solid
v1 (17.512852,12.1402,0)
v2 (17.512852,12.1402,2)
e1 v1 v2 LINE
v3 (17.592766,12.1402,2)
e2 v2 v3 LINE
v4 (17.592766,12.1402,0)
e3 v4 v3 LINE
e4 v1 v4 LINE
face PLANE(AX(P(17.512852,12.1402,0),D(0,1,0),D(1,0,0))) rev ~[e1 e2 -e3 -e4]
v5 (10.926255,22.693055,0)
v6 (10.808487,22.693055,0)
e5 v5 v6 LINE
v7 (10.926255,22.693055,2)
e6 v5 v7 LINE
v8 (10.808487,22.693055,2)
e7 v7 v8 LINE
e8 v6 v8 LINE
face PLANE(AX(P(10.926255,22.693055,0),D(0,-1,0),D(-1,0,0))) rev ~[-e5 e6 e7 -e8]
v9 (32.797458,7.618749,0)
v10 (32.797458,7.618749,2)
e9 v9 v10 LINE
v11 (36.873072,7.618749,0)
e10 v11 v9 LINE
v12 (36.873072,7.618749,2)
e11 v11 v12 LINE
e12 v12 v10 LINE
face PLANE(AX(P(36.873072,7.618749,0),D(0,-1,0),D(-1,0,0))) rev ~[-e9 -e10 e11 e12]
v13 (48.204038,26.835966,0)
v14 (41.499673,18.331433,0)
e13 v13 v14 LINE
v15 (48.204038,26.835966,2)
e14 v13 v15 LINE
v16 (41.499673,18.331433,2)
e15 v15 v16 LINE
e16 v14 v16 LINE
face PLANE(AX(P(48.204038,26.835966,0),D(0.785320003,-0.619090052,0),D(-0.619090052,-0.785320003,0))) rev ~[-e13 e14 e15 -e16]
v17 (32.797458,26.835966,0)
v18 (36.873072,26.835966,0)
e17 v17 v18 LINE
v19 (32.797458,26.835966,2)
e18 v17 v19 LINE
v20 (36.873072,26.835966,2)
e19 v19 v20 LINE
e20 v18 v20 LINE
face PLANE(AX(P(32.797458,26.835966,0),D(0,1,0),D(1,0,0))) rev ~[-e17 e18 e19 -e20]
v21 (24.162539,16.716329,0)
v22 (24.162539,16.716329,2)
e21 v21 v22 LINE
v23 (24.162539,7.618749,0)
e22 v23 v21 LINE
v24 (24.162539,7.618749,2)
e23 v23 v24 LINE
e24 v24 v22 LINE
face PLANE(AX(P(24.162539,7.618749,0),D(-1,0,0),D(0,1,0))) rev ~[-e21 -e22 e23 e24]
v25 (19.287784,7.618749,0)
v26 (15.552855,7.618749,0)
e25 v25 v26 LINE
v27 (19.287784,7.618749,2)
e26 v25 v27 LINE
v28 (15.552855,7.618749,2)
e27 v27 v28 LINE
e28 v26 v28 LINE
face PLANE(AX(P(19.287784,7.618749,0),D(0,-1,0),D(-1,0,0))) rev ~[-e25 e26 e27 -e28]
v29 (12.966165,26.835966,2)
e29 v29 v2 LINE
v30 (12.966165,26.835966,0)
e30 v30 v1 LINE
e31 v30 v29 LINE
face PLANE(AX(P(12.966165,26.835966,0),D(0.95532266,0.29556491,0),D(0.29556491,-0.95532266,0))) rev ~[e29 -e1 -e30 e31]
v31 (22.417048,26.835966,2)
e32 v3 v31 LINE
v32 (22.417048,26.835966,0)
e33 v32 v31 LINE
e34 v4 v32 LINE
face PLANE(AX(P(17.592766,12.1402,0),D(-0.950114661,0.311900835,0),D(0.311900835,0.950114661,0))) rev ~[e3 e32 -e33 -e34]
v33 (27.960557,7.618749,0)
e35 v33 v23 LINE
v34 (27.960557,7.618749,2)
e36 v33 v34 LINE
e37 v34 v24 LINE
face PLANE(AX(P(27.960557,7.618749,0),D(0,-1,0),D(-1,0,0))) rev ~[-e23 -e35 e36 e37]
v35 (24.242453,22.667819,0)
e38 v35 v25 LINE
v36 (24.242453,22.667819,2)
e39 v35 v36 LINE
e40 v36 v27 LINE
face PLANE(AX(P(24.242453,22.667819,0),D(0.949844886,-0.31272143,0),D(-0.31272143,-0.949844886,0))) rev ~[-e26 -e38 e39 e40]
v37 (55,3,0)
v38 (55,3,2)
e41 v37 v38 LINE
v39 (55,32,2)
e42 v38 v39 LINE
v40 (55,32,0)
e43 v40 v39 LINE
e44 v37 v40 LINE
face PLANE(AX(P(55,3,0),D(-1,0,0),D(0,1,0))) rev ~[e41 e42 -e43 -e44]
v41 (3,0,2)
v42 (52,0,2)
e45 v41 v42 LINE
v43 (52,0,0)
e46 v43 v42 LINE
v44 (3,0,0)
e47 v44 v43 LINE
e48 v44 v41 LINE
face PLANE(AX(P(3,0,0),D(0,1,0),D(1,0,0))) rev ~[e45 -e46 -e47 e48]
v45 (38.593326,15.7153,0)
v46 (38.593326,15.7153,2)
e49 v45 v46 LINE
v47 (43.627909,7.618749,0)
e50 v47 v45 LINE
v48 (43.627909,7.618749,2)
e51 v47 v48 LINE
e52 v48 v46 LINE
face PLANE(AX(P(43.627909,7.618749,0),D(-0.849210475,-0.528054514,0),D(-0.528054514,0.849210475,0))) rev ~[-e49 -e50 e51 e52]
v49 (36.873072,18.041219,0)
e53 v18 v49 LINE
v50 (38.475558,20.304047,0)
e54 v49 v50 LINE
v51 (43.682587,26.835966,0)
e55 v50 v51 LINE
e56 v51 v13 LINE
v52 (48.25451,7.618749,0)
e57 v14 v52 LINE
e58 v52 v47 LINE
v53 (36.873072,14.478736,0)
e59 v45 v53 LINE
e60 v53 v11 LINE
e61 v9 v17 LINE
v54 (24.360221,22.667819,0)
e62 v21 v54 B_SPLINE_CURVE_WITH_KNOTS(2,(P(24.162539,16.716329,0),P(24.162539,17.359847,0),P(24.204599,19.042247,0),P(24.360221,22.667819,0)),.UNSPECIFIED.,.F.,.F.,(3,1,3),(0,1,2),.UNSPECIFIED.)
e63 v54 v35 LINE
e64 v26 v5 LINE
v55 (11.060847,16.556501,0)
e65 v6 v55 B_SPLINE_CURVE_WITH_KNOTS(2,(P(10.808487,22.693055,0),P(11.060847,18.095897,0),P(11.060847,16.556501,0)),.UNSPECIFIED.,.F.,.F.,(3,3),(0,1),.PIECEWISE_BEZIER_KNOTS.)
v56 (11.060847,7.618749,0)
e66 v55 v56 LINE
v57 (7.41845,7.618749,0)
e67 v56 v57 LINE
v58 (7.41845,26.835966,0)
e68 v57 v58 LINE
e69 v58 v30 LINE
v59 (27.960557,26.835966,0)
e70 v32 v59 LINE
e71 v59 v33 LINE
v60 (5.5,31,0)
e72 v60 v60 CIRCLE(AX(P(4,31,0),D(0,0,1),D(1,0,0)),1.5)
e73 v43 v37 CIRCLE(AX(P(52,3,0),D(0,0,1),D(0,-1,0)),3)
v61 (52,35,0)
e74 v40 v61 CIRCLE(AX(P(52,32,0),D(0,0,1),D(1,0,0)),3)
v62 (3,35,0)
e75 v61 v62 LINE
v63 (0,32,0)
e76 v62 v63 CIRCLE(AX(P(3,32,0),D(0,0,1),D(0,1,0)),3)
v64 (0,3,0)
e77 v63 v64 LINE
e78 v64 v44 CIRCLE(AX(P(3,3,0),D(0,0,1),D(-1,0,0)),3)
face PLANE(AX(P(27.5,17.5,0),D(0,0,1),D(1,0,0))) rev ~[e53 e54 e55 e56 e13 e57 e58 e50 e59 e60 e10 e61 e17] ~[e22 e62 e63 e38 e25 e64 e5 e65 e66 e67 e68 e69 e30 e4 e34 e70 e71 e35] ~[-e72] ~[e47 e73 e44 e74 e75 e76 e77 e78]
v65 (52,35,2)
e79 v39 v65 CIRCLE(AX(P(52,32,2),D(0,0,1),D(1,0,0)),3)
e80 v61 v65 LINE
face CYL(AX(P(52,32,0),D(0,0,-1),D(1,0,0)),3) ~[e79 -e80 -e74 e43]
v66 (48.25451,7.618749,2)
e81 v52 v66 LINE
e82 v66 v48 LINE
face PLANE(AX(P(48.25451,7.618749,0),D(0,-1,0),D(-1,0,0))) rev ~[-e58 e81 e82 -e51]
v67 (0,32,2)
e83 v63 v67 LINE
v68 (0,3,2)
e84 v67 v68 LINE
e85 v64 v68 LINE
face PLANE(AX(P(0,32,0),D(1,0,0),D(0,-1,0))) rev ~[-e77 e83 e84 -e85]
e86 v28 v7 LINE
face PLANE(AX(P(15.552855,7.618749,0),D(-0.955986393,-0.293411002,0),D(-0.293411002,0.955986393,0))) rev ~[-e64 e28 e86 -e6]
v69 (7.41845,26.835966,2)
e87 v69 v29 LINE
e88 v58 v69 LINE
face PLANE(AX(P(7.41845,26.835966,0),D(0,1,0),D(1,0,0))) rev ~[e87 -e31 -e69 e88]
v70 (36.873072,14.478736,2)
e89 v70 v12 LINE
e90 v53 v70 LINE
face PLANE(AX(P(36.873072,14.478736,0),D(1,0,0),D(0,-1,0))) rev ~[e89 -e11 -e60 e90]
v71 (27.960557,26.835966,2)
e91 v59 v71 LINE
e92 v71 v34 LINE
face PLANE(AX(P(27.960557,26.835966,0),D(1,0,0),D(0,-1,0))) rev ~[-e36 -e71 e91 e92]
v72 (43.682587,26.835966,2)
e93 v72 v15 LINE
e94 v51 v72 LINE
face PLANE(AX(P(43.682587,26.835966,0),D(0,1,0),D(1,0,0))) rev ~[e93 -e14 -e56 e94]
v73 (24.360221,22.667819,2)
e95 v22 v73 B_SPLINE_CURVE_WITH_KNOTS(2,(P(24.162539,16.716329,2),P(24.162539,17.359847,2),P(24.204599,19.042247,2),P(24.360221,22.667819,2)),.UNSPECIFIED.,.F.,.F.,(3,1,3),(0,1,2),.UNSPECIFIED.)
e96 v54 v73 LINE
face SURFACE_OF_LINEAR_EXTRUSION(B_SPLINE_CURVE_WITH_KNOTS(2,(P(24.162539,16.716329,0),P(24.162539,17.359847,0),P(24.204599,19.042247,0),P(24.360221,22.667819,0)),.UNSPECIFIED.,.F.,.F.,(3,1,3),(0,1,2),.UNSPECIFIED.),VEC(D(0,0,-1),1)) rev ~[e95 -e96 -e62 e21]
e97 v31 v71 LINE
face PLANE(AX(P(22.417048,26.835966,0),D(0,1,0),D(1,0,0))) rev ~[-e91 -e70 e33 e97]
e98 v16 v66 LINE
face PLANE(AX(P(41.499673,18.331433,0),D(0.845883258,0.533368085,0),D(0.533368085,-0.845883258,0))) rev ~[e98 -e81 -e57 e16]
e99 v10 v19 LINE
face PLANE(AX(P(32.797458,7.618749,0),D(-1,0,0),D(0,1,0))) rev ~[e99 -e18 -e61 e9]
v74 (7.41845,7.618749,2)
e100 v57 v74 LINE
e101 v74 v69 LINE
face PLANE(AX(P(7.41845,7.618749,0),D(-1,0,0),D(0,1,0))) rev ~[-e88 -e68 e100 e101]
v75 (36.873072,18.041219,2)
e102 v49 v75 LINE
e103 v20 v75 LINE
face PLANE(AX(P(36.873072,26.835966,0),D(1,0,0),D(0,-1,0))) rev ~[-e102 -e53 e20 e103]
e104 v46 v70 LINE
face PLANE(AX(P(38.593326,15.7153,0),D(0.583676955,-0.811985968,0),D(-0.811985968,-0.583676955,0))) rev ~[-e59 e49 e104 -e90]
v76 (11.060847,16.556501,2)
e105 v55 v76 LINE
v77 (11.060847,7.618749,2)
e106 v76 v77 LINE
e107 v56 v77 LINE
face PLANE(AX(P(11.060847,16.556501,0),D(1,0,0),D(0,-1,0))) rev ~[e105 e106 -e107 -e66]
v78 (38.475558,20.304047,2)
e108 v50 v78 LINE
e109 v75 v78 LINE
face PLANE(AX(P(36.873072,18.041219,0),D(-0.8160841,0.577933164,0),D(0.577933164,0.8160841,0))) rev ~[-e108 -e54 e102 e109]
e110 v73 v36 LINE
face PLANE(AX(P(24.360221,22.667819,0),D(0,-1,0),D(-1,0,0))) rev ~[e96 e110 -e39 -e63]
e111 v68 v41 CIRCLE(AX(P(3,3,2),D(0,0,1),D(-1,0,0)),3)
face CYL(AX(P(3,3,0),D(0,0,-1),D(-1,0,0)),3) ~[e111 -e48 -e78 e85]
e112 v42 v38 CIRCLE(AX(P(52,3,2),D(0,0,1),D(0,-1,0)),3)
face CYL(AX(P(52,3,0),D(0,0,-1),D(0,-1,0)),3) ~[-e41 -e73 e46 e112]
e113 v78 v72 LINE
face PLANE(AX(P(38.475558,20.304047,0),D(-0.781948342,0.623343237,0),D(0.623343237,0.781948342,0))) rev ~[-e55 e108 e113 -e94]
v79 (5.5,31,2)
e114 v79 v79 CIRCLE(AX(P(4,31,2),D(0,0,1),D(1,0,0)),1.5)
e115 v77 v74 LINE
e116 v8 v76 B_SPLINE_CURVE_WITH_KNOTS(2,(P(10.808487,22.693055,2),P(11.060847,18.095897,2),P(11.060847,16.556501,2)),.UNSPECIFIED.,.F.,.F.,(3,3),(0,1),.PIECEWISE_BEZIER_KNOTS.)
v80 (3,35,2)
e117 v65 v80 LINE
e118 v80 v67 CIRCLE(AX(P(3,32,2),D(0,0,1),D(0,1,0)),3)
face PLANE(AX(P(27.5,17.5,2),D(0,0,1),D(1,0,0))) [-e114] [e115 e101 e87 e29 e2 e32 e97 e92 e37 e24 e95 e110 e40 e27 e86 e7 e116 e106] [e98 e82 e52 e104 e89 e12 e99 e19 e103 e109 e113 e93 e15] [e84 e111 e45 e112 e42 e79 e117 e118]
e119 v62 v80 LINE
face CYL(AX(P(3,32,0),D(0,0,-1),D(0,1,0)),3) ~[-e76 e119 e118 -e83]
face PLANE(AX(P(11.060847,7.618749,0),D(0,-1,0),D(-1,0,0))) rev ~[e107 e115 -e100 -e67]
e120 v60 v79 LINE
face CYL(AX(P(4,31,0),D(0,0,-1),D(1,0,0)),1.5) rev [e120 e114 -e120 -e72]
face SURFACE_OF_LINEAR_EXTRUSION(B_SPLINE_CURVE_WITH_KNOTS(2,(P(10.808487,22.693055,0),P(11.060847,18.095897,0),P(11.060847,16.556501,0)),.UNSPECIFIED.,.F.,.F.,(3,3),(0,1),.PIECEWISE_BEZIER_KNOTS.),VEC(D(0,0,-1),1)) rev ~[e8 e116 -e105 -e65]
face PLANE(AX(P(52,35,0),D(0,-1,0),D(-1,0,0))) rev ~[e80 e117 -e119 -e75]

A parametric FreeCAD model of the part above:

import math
import FreeCAD as App
import Part
import Sketcher
Q = App.Units.Quantity


def add_polygon(sketch, points):
    """Adds a closed chain of lines whose ends are joined by coincident constraints."""
    first, n = sketch.GeometryCount, len(points)
    for a, b in zip(points, points[1:] + points[:1]):
        sketch.addGeometry(Part.LineSegment(App.Vector(*a, 0), App.Vector(*b, 0)), False)
    for i in range(n):
        sketch.addConstraint(Sketcher.Constraint("Coincident", first + i, 2, first + (i + 1) % n, 1))

doc = App.newDocument("Part")
params = doc.addObject("Spreadsheet::Sheet", "Params")
for row, (alias, value) in enumerate([
    ("sketch1_diameter", "3 mm"),
    ("sketch1_radius", "3 mm"),
    ("sketch1_width", "49 mm"),
    ("sketch1_height", "29 mm"),
    ("pad1_length", "2 mm"),
], start=1):
    params.set(f"A{row}", alias)
    params.set(f"B{row}", "=" + value)
    params.setAlias(f"B{row}", alias)

body = doc.addObject("PartDesign::Body", "Body")

# Sketch on XY plane
sketch1 = doc.addObject("Sketcher::SketchObject", "Sketch")
body.addObject(sketch1)
sketch1.AttachmentSupport = (doc.XY_Plane, [""])
sketch1.MapMode = "FlatFace"
sketch1.addGeometry(Part.ArcOfCircle(Part.Circle(App.Vector(3, 3, 0), App.Vector(0, 0, 1), 3), math.radians(180), math.radians(270)), False)  # 0
sketch1.addGeometry(Part.LineSegment(App.Vector(3, 0, 0), App.Vector(52, 0, 0)), False)  # 1
sketch1.addGeometry(Part.ArcOfCircle(Part.Circle(App.Vector(52, 3, 0), App.Vector(0, 0, 1), 3), math.radians(-90), math.radians(0)), False)  # 2
sketch1.addGeometry(Part.LineSegment(App.Vector(55, 3, 0), App.Vector(55, 32, 0)), False)  # 3
sketch1.addGeometry(Part.ArcOfCircle(Part.Circle(App.Vector(52, 32, 0), App.Vector(0, 0, 1), 3), math.radians(0), math.radians(90)), False)  # 4
sketch1.addGeometry(Part.LineSegment(App.Vector(52, 35, 0), App.Vector(3, 35, 0)), False)  # 5
sketch1.addGeometry(Part.ArcOfCircle(Part.Circle(App.Vector(3, 32, 0), App.Vector(0, 0, 1), 3), math.radians(90), math.radians(180)), False)  # 6
sketch1.addGeometry(Part.LineSegment(App.Vector(0, 32, 0), App.Vector(0, 3, 0)), False)  # 7
sketch1.addGeometry(Part.LineSegment(App.Vector(24.242453, 22.667819, 0), App.Vector(19.287784, 7.618749, 0)), False)  # 8
sketch1.addGeometry(Part.LineSegment(App.Vector(19.287784, 7.618749, 0), App.Vector(15.552855, 7.618749, 0)), False)  # 9
sketch1.addGeometry(Part.LineSegment(App.Vector(15.552855, 7.618749, 0), App.Vector(10.926255, 22.693055, 0)), False)  # 10
sketch1.addGeometry(Part.LineSegment(App.Vector(10.926255, 22.693055, 0), App.Vector(10.808487, 22.693055, 0)), False)  # 11
sketch1.addGeometry(Part.BSplineCurve([App.Vector(10.808487, 22.693055, 0), App.Vector(11.060847, 18.095897, 0), App.Vector(11.060847, 16.556501, 0)], [3, 3], [0, 1], False, 2, [1, 1, 1], False), False)  # 12
sketch1.addGeometry(Part.LineSegment(App.Vector(11.060847, 16.556501, 0), App.Vector(11.060847, 7.618749, 0)), False)  # 13
sketch1.addGeometry(Part.LineSegment(App.Vector(11.060847, 7.618749, 0), App.Vector(7.41845, 7.618749, 0)), False)  # 14
sketch1.addGeometry(Part.LineSegment(App.Vector(7.41845, 7.618749, 0), App.Vector(7.41845, 26.835966, 0)), False)  # 15
sketch1.addGeometry(Part.LineSegment(App.Vector(7.41845, 26.835966, 0), App.Vector(12.966165, 26.835966, 0)), False)  # 16
sketch1.addGeometry(Part.LineSegment(App.Vector(12.966165, 26.835966, 0), App.Vector(17.512852, 12.1402, 0)), False)  # 17
sketch1.addGeometry(Part.LineSegment(App.Vector(17.512852, 12.1402, 0), App.Vector(17.592766, 12.1402, 0)), False)  # 18
sketch1.addGeometry(Part.LineSegment(App.Vector(17.592766, 12.1402, 0), App.Vector(22.417048, 26.835966, 0)), False)  # 19
sketch1.addGeometry(Part.LineSegment(App.Vector(22.417048, 26.835966, 0), App.Vector(27.960557, 26.835966, 0)), False)  # 20
sketch1.addGeometry(Part.LineSegment(App.Vector(27.960557, 26.835966, 0), App.Vector(27.960557, 7.618749, 0)), False)  # 21
sketch1.addGeometry(Part.LineSegment(App.Vector(27.960557, 7.618749, 0), App.Vector(24.162539, 7.618749, 0)), False)  # 22
sketch1.addGeometry(Part.LineSegment(App.Vector(24.162539, 7.618749, 0), App.Vector(24.162539, 16.716329, 0)), False)  # 23
sketch1.addGeometry(Part.BSplineCurve([App.Vector(24.162539, 16.716329, 0), App.Vector(24.162539, 17.359847, 0), App.Vector(24.204599, 19.042247, 0), App.Vector(24.360221, 22.667819, 0)], [3, 1, 3], [0, 1, 2], False, 2, [1, 1, 1, 1], False), False)  # 24
sketch1.addGeometry(Part.LineSegment(App.Vector(24.360221, 22.667819, 0), App.Vector(24.242453, 22.667819, 0)), False)  # 25
add_polygon(sketch1, [(48.204038, 26.835966), (41.499673, 18.331433), (48.25451, 7.618749), (43.627909, 7.618749), (38.593326, 15.7153), (36.873072, 14.478736), (36.873072, 7.618749), (32.797458, 7.618749), (32.797458, 26.835966), (36.873072, 26.835966), (36.873072, 18.041219), (38.475558, 20.304047), (43.682587, 26.835966)])  # lines 26-38
sketch1.addGeometry(Part.Circle(App.Vector(4, 31, 0), App.Vector(0, 0, 1), 1.5), False)  # 39
sketch1.addConstraint(Sketcher.Constraint("Block", 12))
sketch1.addConstraint(Sketcher.Constraint("Block", 24))
sketch1.addConstraint(Sketcher.Constraint("Tangent", 0, 2, 1, 1))
sketch1.addConstraint(Sketcher.Constraint("Tangent", 1, 2, 2, 1))
sketch1.addConstraint(Sketcher.Constraint("Tangent", 2, 2, 3, 1))
sketch1.addConstraint(Sketcher.Constraint("Tangent", 3, 2, 4, 1))
sketch1.addConstraint(Sketcher.Constraint("Tangent", 4, 2, 5, 1))
sketch1.addConstraint(Sketcher.Constraint("Tangent", 5, 2, 6, 1))
sketch1.addConstraint(Sketcher.Constraint("Tangent", 6, 2, 7, 1))
sketch1.addConstraint(Sketcher.Constraint("Tangent", 7, 2, 0, 1))
sketch1.addConstraint(Sketcher.Constraint("Coincident", 8, 2, 9, 1))
sketch1.addConstraint(Sketcher.Constraint("Coincident", 9, 2, 10, 1))
sketch1.addConstraint(Sketcher.Constraint("Coincident", 10, 2, 11, 1))
sketch1.addConstraint(Sketcher.Constraint("Coincident", 11, 2, 12, 1))
sketch1.addConstraint(Sketcher.Constraint("Coincident", 12, 2, 13, 1))
sketch1.addConstraint(Sketcher.Constraint("Coincident", 13, 2, 14, 1))
sketch1.addConstraint(Sketcher.Constraint("Coincident", 14, 2, 15, 1))
sketch1.addConstraint(Sketcher.Constraint("Coincident", 15, 2, 16, 1))
sketch1.addConstraint(Sketcher.Constraint("Coincident", 16, 2, 17, 1))
sketch1.addConstraint(Sketcher.Constraint("Coincident", 17, 2, 18, 1))
sketch1.addConstraint(Sketcher.Constraint("Coincident", 18, 2, 19, 1))
sketch1.addConstraint(Sketcher.Constraint("Coincident", 19, 2, 20, 1))
sketch1.addConstraint(Sketcher.Constraint("Coincident", 20, 2, 21, 1))
sketch1.addConstraint(Sketcher.Constraint("Coincident", 21, 2, 22, 1))
sketch1.addConstraint(Sketcher.Constraint("Coincident", 22, 2, 23, 1))
sketch1.addConstraint(Sketcher.Constraint("Coincident", 23, 2, 24, 1))
sketch1.addConstraint(Sketcher.Constraint("Coincident", 24, 2, 25, 1))
sketch1.addConstraint(Sketcher.Constraint("Coincident", 25, 2, 8, 1))
sketch1.addConstraint(Sketcher.Constraint("Horizontal", 1))
sketch1.addConstraint(Sketcher.Constraint("Vertical", 3))
sketch1.addConstraint(Sketcher.Constraint("Horizontal", 5))
sketch1.addConstraint(Sketcher.Constraint("Vertical", 7))
sketch1.addConstraint(Sketcher.Constraint("Horizontal", 9))
sketch1.addConstraint(Sketcher.Constraint("Horizontal", 11))
sketch1.addConstraint(Sketcher.Constraint("Vertical", 13))
sketch1.addConstraint(Sketcher.Constraint("Horizontal", 14))
sketch1.addConstraint(Sketcher.Constraint("Vertical", 15))
sketch1.addConstraint(Sketcher.Constraint("Horizontal", 16))
sketch1.addConstraint(Sketcher.Constraint("Horizontal", 18))
sketch1.addConstraint(Sketcher.Constraint("Horizontal", 20))
sketch1.addConstraint(Sketcher.Constraint("Vertical", 21))
sketch1.addConstraint(Sketcher.Constraint("Horizontal", 22))
sketch1.addConstraint(Sketcher.Constraint("Vertical", 23))
sketch1.addConstraint(Sketcher.Constraint("Horizontal", 25))
sketch1.addConstraint(Sketcher.Constraint("Horizontal", 28))
sketch1.addConstraint(Sketcher.Constraint("Vertical", 31))
sketch1.addConstraint(Sketcher.Constraint("Horizontal", 32))
sketch1.addConstraint(Sketcher.Constraint("Vertical", 33))
sketch1.addConstraint(Sketcher.Constraint("Horizontal", 34))
sketch1.addConstraint(Sketcher.Constraint("Vertical", 35))
sketch1.addConstraint(Sketcher.Constraint("Horizontal", 38))
sketch1.addConstraint(Sketcher.Constraint("Equal", 0, 2))
sketch1.addConstraint(Sketcher.Constraint("Equal", 2, 4))
sketch1.addConstraint(Sketcher.Constraint("Equal", 4, 6))
sketch1.addConstraint(Sketcher.Constraint("PointOnObject", 0, 2, -1))
sketch1.addConstraint(Sketcher.Constraint("PointOnObject", 6, 2, -2))
sketch1.addConstraint(Sketcher.Constraint("Horizontal", 9, 2, 13, 2))
sketch1.addConstraint(Sketcher.Constraint("Horizontal", 16, 2, 19, 2))
sketch1.addConstraint(Sketcher.Constraint("Horizontal", 14, 2, 21, 2))
sketch1.addConstraint(Sketcher.Constraint("Horizontal", 22, 2, 27, 2))
sketch1.addConstraint(Sketcher.Constraint("Horizontal", 28, 2, 31, 2))
sketch1.addConstraint(Sketcher.Constraint("Horizontal", 20, 2, 33, 2))
sketch1.addConstraint(Sketcher.Constraint("Horizontal", 34, 2, 37, 2))
sketch1.addConstraint(Sketcher.Constraint("Vertical", 31, 2, 34, 2))
sketch1.addConstraint(Sketcher.Constraint("Equal", 11, 25))
sketch1.addConstraint(Sketcher.Constraint("Diameter", 39, Q("3 mm")))
sketch1.addConstraint(Sketcher.Constraint("Radius", 0, Q("3 mm")))
sketch1.addConstraint(Sketcher.Constraint("DistanceX", 1, 1, 1, 2, Q("49 mm")))
sketch1.addConstraint(Sketcher.Constraint("DistanceY", 3, 1, 3, 2, Q("29 mm")))
sketch1.addConstraint(Sketcher.Constraint("DistanceX", -1, 1, 39, 3, Q("4 mm")))
sketch1.addConstraint(Sketcher.Constraint("DistanceY", -1, 1, 39, 3, Q("31 mm")))
sketch1.addConstraint(Sketcher.Constraint("DistanceX", 28, 2, 28, 1, Q("4.626601 mm")))
sketch1.addConstraint(Sketcher.Constraint("DistanceX", 9, 2, 9, 1, Q("3.734928 mm")))
sketch1.addConstraint(Sketcher.Constraint("DistanceX", 11, 2, 11, 1, Q("0.117768 mm")))
sketch1.addConstraint(Sketcher.Constraint("DistanceX", 20, 1, 20, 2, Q("5.543509 mm")))
sketch1.addConstraint(Sketcher.Constraint("DistanceX", 22, 2, 22, 1, Q("3.798019 mm")))
sketch1.addConstraint(Sketcher.Constraint("DistanceX", 38, 1, 38, 2, Q("4.521451 mm")))
sketch1.addConstraint(Sketcher.Constraint("DistanceY", 13, 2, 13, 1, Q("8.937751 mm")))
sketch1.addConstraint(Sketcher.Constraint("DistanceY", -1, 1, 17, 2, Q("12.1402 mm")))
sketch1.addConstraint(Sketcher.Constraint("DistanceY", -1, 1, 29, 2, Q("15.7153 mm")))
sketch1.addConstraint(Sketcher.Constraint("DistanceX", 10, 2, 9, 2, Q("4.626601 mm")))
sketch1.addConstraint(Sketcher.Constraint("DistanceX", 14, 2, 17, 2, Q("10.094401 mm")))
sketch1.addConstraint(Sketcher.Constraint("DistanceX", 30, 2, 26, 2, Q("4.626601 mm")))
sketch1.addConstraint(Sketcher.Constraint("DistanceX", 21, 2, 32, 2, Q("4.836901 mm")))
sketch1.addConstraint(Sketcher.Constraint("Distance", 17, Q("15.383039 mm")))
sketch1.addConstraint(Sketcher.Constraint("Distance", 19, Q("15.46736 mm")))
sketch1.addConstraint(Sketcher.Constraint("Distance", 29, Q("9.53421 mm")))
sketch1.addConstraint(Sketcher.Constraint("Distance", 36, Q("2.772788 mm")))
sketch1.addConstraint(Sketcher.Constraint("Distance", 37, Q("8.353389 mm")))
sketch1.addConstraint(Sketcher.Constraint("DistanceX", 14, 2, 14, 1, Q("3.642396 mm")))
sketch1.addConstraint(Sketcher.Constraint("DistanceX", 16, 1, 16, 2, Q("5.547715 mm")))
sketch1.addConstraint(Sketcher.Constraint("DistanceX", 32, 2, 32, 1, Q("4.075615 mm")))
sketch1.addConstraint(Sketcher.Constraint("DistanceY", 31, 2, 31, 1, Q("6.859987 mm")))
sketch1.addConstraint(Sketcher.Constraint("DistanceY", 35, 2, 35, 1, Q("8.794747 mm")))
sketch1.addConstraint(Sketcher.Constraint("DistanceX", -1, 1, 27, 2, Q("48.25451 mm")))
sketch1.addConstraint(Sketcher.Constraint("DistanceX", -1, 1, 36, 2, Q("38.475558 mm")))
sketch1.addConstraint(Sketcher.Constraint("Distance", 26, Q("10.829386 mm")))
sketch1.setExpression("Constraints[78]", "Params.sketch1_diameter")
sketch1.setExpression("Constraints[79]", "Params.sketch1_radius")
sketch1.setExpression("Constraints[80]", "Params.sketch1_width")
sketch1.setExpression("Constraints[81]", "Params.sketch1_height")
pad1 = doc.addObject("PartDesign::Pad", "Pad")
body.addObject(pad1)
pad1.Profile = sketch1
pad1.setExpression("Length", "Params.pad1_length")

doc.recompute()
